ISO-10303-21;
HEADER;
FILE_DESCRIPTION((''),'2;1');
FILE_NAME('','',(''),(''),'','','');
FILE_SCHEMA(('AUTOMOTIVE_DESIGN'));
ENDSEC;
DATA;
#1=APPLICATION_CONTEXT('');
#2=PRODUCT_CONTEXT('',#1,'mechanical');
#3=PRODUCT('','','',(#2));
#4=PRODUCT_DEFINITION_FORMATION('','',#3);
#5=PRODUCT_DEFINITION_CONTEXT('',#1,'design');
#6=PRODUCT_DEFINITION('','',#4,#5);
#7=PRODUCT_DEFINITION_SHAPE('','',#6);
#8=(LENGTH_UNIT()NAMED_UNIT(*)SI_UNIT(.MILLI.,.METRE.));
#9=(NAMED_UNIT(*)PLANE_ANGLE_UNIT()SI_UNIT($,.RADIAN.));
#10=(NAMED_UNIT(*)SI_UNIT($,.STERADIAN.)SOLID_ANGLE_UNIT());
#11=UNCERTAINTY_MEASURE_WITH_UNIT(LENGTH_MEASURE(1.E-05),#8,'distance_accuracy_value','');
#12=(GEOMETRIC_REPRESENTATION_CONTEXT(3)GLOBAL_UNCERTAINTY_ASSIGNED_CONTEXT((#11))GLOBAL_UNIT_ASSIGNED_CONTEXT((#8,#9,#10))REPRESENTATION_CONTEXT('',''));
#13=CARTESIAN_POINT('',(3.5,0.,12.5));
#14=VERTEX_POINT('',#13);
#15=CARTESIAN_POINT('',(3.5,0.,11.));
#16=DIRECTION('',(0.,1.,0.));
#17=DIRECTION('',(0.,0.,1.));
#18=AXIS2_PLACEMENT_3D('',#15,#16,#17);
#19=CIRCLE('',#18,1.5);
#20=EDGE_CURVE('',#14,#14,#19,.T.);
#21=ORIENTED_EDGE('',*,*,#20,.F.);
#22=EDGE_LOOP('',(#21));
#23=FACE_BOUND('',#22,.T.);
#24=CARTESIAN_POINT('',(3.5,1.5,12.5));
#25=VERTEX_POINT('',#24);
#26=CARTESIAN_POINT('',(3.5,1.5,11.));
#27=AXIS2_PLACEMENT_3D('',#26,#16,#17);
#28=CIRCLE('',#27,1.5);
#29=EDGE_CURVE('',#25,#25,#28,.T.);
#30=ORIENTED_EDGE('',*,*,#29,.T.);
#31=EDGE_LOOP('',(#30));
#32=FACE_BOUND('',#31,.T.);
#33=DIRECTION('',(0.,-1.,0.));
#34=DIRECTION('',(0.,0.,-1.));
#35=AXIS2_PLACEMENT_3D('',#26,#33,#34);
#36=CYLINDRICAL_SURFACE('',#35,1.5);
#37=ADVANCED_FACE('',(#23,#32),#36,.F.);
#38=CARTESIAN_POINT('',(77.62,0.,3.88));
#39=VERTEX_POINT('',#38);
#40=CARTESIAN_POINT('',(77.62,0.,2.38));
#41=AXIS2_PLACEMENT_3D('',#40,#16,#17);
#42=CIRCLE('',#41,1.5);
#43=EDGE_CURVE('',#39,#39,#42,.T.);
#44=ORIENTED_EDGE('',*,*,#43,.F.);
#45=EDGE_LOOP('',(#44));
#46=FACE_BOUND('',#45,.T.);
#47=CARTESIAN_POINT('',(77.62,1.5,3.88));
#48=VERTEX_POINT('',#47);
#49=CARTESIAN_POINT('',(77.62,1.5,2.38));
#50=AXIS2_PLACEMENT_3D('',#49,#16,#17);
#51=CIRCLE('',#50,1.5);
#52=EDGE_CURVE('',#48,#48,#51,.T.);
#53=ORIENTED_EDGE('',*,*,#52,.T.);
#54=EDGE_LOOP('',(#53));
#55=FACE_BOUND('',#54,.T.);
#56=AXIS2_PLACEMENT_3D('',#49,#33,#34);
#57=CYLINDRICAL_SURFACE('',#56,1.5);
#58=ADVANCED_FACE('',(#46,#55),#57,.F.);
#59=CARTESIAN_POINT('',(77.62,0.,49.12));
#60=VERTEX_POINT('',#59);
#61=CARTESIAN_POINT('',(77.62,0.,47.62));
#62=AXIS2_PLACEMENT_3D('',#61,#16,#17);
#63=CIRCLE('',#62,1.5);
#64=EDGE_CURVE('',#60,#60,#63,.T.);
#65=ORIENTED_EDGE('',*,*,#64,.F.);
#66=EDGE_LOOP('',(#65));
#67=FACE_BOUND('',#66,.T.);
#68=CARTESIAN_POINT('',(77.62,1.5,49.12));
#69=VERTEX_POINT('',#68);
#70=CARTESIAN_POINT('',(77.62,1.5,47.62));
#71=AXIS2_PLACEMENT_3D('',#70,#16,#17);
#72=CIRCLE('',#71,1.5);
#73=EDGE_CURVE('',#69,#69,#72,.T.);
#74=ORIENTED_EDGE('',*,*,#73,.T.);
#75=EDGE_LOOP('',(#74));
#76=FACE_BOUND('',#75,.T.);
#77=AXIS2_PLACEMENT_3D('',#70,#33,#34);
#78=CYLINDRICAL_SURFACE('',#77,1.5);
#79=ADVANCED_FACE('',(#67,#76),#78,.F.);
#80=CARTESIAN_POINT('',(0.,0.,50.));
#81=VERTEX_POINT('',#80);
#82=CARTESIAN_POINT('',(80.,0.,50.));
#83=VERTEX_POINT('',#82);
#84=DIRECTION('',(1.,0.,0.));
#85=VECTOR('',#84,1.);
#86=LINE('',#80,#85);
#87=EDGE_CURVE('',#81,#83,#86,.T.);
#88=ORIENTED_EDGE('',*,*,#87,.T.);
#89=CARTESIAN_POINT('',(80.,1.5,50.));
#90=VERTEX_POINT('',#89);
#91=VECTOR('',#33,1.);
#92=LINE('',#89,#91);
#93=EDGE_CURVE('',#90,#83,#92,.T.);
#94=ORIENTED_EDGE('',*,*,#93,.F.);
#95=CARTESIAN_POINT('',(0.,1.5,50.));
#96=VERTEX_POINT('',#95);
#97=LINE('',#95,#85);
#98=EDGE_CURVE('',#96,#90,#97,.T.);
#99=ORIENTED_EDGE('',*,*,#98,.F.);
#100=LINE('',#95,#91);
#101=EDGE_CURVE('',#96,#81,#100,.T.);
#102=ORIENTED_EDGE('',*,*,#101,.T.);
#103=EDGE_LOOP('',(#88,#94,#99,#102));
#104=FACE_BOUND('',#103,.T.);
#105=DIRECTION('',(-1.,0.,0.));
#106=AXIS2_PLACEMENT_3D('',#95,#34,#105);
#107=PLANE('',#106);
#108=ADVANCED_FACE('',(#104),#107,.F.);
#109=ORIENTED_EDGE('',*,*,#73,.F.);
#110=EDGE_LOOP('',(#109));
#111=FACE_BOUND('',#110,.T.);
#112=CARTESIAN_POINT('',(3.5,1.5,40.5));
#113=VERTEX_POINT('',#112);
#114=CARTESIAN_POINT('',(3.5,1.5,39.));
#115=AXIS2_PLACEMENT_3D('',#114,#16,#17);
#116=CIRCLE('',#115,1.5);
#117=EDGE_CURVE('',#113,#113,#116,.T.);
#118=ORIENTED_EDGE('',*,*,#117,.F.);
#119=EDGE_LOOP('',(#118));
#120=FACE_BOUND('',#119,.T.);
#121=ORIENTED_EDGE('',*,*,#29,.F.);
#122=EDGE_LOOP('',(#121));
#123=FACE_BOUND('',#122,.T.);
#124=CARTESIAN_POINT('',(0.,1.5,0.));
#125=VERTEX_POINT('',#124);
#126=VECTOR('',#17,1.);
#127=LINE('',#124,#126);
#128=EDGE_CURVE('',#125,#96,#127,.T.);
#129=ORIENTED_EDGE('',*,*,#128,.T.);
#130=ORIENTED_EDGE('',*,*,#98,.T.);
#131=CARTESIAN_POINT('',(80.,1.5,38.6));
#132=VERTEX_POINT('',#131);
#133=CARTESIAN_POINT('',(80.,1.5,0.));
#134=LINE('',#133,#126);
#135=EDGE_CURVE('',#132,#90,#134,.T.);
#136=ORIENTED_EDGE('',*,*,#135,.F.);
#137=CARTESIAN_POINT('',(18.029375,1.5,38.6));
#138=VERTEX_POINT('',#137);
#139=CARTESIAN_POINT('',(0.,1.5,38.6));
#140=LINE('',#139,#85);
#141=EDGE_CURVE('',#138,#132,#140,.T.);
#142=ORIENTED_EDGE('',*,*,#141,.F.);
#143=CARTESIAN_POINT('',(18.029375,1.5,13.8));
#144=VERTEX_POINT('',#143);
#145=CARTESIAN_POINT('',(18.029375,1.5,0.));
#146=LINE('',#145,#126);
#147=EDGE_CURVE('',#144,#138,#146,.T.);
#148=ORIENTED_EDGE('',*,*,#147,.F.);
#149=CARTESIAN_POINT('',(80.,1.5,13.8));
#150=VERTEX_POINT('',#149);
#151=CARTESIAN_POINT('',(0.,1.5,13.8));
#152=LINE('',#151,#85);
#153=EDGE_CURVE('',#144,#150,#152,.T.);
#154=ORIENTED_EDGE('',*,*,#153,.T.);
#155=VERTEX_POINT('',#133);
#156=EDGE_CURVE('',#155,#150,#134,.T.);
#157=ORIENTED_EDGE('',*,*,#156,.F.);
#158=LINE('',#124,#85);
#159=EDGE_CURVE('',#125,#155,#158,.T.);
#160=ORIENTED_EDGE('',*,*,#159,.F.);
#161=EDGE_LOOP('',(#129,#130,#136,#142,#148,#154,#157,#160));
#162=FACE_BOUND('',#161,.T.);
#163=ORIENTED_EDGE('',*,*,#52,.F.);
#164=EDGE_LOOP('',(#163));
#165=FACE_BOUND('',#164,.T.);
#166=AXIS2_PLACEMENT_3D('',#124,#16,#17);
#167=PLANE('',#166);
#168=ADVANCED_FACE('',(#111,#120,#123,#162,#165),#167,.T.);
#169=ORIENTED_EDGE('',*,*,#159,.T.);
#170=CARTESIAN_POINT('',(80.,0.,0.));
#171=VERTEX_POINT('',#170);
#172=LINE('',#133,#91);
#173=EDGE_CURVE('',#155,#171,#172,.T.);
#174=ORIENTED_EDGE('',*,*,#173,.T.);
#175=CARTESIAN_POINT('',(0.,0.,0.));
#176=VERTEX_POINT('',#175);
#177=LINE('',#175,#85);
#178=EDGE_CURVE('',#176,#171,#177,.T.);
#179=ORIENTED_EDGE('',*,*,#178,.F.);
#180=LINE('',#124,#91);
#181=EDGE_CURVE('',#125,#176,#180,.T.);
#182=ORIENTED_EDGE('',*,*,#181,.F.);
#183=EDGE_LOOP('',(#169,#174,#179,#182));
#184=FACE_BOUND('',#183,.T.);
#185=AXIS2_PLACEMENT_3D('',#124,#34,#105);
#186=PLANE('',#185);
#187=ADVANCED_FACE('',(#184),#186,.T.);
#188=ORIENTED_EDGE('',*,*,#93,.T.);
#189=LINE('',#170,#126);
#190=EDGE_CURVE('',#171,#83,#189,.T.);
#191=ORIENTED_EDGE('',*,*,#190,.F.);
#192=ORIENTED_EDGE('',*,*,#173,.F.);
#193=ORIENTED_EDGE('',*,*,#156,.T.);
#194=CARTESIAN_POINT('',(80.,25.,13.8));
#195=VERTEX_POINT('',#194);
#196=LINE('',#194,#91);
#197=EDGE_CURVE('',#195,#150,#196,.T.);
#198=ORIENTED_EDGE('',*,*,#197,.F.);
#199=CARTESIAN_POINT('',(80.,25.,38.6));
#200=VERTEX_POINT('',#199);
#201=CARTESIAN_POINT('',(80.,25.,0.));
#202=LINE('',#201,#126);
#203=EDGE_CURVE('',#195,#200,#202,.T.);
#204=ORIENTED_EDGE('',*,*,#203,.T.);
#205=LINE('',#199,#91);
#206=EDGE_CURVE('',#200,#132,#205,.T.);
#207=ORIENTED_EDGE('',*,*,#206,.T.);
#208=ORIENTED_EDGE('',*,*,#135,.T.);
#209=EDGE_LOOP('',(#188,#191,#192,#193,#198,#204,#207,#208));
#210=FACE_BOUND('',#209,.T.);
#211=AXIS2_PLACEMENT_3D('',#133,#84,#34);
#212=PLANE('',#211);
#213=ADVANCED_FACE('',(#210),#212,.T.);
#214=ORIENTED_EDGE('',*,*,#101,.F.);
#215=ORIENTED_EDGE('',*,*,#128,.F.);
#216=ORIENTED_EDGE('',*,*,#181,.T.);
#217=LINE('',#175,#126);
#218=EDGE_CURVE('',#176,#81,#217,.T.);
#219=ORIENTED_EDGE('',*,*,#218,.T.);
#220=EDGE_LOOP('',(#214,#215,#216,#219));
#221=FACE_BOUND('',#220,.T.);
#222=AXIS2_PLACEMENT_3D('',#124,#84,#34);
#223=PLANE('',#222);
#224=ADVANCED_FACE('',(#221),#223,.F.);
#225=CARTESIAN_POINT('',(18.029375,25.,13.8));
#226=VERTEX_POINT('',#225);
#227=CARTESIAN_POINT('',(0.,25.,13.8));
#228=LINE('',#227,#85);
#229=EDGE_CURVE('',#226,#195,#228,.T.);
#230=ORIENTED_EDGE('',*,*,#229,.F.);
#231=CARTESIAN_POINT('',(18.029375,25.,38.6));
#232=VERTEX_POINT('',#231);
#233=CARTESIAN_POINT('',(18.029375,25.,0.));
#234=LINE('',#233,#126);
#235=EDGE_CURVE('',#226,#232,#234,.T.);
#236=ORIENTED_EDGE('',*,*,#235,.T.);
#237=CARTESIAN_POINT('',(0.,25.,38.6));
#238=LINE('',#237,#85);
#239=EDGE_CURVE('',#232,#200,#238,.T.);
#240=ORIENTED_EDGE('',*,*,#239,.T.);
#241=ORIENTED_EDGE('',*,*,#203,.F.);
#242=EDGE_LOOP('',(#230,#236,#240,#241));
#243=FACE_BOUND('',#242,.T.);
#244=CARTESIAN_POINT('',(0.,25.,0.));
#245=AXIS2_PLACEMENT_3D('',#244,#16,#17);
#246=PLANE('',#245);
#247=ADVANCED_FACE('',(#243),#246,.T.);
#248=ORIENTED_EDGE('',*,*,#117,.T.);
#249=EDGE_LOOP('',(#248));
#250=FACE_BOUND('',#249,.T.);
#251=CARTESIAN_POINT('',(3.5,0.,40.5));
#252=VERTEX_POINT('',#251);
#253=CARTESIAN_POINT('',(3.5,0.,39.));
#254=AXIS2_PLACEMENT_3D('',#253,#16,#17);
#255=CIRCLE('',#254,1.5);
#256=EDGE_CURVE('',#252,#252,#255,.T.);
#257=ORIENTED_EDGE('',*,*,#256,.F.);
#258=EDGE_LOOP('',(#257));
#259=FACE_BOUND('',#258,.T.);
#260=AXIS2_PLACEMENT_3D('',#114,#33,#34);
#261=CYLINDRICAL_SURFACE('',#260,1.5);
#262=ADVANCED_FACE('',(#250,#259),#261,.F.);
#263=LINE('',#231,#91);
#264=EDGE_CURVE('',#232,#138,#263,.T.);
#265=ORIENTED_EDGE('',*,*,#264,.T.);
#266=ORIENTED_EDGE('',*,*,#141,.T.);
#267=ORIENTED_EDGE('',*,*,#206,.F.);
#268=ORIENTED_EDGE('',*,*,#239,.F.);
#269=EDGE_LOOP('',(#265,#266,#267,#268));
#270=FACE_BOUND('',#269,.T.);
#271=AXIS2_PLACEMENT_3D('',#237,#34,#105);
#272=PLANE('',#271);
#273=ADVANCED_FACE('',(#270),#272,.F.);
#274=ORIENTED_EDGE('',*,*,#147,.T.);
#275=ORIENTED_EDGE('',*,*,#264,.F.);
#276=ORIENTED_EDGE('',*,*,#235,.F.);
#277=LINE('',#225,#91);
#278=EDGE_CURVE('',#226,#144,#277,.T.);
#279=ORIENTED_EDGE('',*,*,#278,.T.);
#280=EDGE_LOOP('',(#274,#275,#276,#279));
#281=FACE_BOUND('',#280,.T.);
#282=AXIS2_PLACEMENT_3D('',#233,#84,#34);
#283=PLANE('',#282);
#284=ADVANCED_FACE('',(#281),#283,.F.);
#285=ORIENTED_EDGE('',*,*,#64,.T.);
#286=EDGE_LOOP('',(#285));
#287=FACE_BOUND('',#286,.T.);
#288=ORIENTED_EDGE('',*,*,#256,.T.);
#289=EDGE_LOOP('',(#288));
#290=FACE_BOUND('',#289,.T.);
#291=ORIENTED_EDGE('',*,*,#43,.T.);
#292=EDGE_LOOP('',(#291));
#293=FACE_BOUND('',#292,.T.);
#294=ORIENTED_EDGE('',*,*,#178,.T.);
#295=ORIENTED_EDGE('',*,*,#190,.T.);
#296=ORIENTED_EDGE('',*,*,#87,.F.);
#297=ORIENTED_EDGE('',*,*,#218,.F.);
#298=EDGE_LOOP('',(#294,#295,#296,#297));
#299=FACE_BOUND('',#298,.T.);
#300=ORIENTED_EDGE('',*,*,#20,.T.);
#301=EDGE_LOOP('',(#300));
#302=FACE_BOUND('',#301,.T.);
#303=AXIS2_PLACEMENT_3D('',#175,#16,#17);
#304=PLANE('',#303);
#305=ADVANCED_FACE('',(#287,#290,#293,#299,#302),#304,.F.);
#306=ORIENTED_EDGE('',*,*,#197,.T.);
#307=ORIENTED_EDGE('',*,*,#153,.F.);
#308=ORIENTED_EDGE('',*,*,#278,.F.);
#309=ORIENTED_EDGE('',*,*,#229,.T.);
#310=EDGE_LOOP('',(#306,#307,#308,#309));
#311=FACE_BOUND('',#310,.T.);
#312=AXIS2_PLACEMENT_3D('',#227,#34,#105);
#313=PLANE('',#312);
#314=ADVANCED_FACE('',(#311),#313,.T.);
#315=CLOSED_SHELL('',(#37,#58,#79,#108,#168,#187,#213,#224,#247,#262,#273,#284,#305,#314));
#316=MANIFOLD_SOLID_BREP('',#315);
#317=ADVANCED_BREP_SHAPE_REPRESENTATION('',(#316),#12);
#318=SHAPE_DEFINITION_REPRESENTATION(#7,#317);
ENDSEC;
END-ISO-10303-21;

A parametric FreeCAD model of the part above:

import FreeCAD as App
import Part
import Sketcher
from FreeCAD import Vector

doc = App.newDocument("Part")
body = doc.addObject("PartDesign::Body", "Body")

sketch1 = body.newObject("Sketcher::SketchObject", "Sketch")
sketch1.AttachmentSupport = (doc.getObject("XZ_Plane"), [""])
sketch1.MapMode = "FlatFace"
sketch1.addGeometry([
    Part.LineSegment(Vector(80, 0, 0), Vector(0, 0, 0)),
    Part.LineSegment(Vector(0, 0, 0), Vector(0, 50, 0)),
    Part.LineSegment(Vector(0, 50, 0), Vector(80, 50, 0)),
    Part.LineSegment(Vector(80, 50, 0), Vector(80, 38.6, 0)),
    Part.LineSegment(Vector(80, 38.6, 0), Vector(18, 38.6, 0)),
    Part.LineSegment(Vector(18, 38.6, 0), Vector(18, 13.8, 0)),
    Part.LineSegment(Vector(18, 13.8, 0), Vector(80, 13.8, 0)),
    Part.LineSegment(Vector(80, 13.8, 0), Vector(80, 0, 0)),
    Part.Circle(Vector(3.5, 39, 0), Vector(0, 0, 1), 1.5),
    Part.Circle(Vector(77.6, 47.6, 0), Vector(0, 0, 1), 1.5),
    Part.Circle(Vector(3.5, 11, 0), Vector(0, 0, 1), 1.5),
    Part.Circle(Vector(77.6, 2.4, 0), Vector(0, 0, 1), 1.5),
], False)
sketch1.addConstraint([
    Sketcher.Constraint("Coincident", 0, 2, 1, 1),
    Sketcher.Constraint("Coincident", 1, 2, 2, 1),
    Sketcher.Constraint("Coincident", 2, 2, 3, 1),
    Sketcher.Constraint("Coincident", 3, 2, 4, 1),
    Sketcher.Constraint("Coincident", 4, 2, 5, 1),
    Sketcher.Constraint("Coincident", 5, 2, 6, 1),
    Sketcher.Constraint("Coincident", 6, 2, 7, 1),
    Sketcher.Constraint("Coincident", 7, 2, 0, 1),
    Sketcher.Constraint("Horizontal", 0),
    Sketcher.Constraint("Vertical", 1),
    Sketcher.Constraint("Horizontal", 2),
    Sketcher.Constraint("Vertical", 3),
    Sketcher.Constraint("Horizontal", 4),
    Sketcher.Constraint("Vertical", 5),
    Sketcher.Constraint("Horizontal", 6),
    Sketcher.Constraint("Vertical", 7),
    Sketcher.Constraint("Coincident", 0, 2, -1, 1),
    Sketcher.Constraint("Equal", 8, 9),
    Sketcher.Constraint("Equal", 9, 10),
    Sketcher.Constraint("Equal", 10, 11),
    Sketcher.Constraint("Vertical", 8, 3, 10, 3),
    Sketcher.Constraint("Vertical", 9, 3, 11, 3),
    Sketcher.Constraint("Vertical", 3, 2, 6, 2),
    Sketcher.Constraint("Diameter", 8, 3.0),
    Sketcher.Constraint("DistanceX", 0, 2, 0, 1, 80.0),
    Sketcher.Constraint("DistanceY", 1, 1, 1, 2, 50.0),
    Sketcher.Constraint("DistanceY", 3, 2, 3, 1, 11.4),
    Sketcher.Constraint("DistanceY", 5, 2, 5, 1, 24.8),
    Sketcher.Constraint("DistanceY", -1, 1, 8, 3, 39.0),
    Sketcher.Constraint("DistanceY", -1, 1, 10, 3, 11.0),
    Sketcher.Constraint("DistanceX", -1, 1, 8, 3, 3.5),
    Sketcher.Constraint("DistanceX", -1, 1, 9, 3, 77.62),
    Sketcher.Constraint("DistanceY", -1, 1, 9, 3, 47.62),
    Sketcher.Constraint("DistanceY", -1, 1, 11, 3, 2.38),
    Sketcher.Constraint("DistanceX", 4, 2, 4, 1, 61.970625),
])
pad1 = body.newObject("PartDesign::Pad", "Pad")
pad1.Profile = sketch1
pad1.Length = 1.5
pad1.Reversed = True

sketch2 = body.newObject("Sketcher::SketchObject", "Sketch001")
sketch2.AttachmentSupport = (doc.getObject("XZ_Plane"), [""])
sketch2.MapMode = "FlatFace"
sketch2.addGeometry([
    Part.LineSegment(Vector(18, 14, 0), Vector(18, 39, 0)),
    Part.LineSegment(Vector(18, 39, 0), Vector(80, 39, 0)),
    Part.LineSegment(Vector(80, 39, 0), Vector(80, 14, 0)),
    Part.LineSegment(Vector(80, 14, 0), Vector(18, 14, 0)),
], False)
sketch2.addConstraint([
    Sketcher.Constraint("Coincident", 0, 2, 1, 1),
    Sketcher.Constraint("Coincident", 1, 2, 2, 1),
    Sketcher.Constraint("Coincident", 2, 2, 3, 1),
    Sketcher.Constraint("Coincident", 3, 2, 0, 1),
    Sketcher.Constraint("Vertical", 0),
    Sketcher.Constraint("Horizontal", 1),
    Sketcher.Constraint("Vertical", 2),
    Sketcher.Constraint("Horizontal", 3),
    Sketcher.Constraint("DistanceY", 0, 1, 0, 2, 24.8),
    Sketcher.Constraint("DistanceX", -1, 1, 1, 2, 80.0),
    Sketcher.Constraint("DistanceY", -1, 1, 0, 2, 38.6),
    Sketcher.Constraint("DistanceX", 1, 1, 1, 2, 61.970625),
])
pad2 = body.newObject("PartDesign::Pad", "Pad001")
pad2.Profile = sketch2
pad2.Length = 25
pad2.Reversed = True

doc.recompute()
